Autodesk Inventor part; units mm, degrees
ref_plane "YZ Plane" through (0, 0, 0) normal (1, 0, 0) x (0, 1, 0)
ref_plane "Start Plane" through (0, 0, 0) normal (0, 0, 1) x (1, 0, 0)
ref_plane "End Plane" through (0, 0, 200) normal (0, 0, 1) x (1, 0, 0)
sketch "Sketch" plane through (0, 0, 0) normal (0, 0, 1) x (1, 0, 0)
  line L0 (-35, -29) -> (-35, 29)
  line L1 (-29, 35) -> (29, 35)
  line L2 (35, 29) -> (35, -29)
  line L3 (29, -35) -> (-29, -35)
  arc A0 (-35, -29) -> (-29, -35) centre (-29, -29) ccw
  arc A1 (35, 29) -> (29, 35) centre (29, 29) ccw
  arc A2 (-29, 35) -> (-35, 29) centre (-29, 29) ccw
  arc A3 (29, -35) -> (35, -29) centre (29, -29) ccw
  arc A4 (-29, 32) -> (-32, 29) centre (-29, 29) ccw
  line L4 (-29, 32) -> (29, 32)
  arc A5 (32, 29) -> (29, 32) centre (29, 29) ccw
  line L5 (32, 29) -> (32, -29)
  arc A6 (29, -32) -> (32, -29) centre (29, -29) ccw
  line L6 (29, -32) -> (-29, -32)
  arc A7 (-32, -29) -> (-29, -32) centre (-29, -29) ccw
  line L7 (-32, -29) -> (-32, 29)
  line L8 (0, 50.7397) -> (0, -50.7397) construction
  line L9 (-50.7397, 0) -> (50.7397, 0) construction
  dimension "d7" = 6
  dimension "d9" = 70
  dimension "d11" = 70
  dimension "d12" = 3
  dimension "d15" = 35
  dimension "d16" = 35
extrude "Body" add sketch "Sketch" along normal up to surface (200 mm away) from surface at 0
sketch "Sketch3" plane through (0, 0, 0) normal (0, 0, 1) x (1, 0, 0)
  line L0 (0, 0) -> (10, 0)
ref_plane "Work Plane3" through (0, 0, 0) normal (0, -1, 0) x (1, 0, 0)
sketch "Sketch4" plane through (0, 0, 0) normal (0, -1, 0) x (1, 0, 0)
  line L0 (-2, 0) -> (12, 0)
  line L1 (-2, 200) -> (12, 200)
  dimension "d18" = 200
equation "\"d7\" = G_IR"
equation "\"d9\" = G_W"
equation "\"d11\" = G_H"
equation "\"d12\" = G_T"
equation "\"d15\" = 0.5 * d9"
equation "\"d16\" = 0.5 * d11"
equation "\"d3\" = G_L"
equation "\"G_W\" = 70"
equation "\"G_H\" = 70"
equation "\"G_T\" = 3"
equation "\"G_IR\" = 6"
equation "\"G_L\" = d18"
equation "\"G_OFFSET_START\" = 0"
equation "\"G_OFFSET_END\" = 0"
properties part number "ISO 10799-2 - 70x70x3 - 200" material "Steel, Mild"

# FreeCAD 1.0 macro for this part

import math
import FreeCAD as App
import Part
import Sketcher
from FreeCAD import Vector

doc = App.newDocument("Part")
body = doc.addObject("PartDesign::Body", "Body")

# Sketch on XY plane
sketch1 = body.newObject("Sketcher::SketchObject", "Sketch")
sketch1.AttachmentSupport = (doc.getObject("XY_Plane"), [""])
sketch1.MapMode = "FlatFace"
sketch1.addGeometry([
    Part.LineSegment(Vector(-35, 29, 0), Vector(-35, -29, 0)),  # 0
    Part.ArcOfCircle(Part.Circle(Vector(-29, -29, 0), Vector(0, 0, 1), 6), math.radians(180), math.radians(270)),  # 1
    Part.LineSegment(Vector(-29, -35, 0), Vector(29, -35, 0)),  # 2
    Part.ArcOfCircle(Part.Circle(Vector(29, -29, 0), Vector(0, 0, 1), 6), math.radians(-90), math.radians(0)),  # 3
    Part.LineSegment(Vector(35, -29, 0), Vector(35, 29, 0)),  # 4
    Part.ArcOfCircle(Part.Circle(Vector(29, 29, 0), Vector(0, 0, 1), 6), math.radians(0), math.radians(90)),  # 5
    Part.LineSegment(Vector(29, 35, 0), Vector(-29, 35, 0)),  # 6
    Part.ArcOfCircle(Part.Circle(Vector(-29, 29, 0), Vector(0, 0, 1), 6), math.radians(90), math.radians(180)),  # 7
    Part.ArcOfCircle(Part.Circle(Vector(-29, 29, 0), Vector(0, 0, 1), 3), math.radians(90), math.radians(180)),  # 8
    Part.LineSegment(Vector(-29, 32, 0), Vector(29, 32, 0)),  # 9
    Part.ArcOfCircle(Part.Circle(Vector(29, 29, 0), Vector(0, 0, 1), 3), math.radians(0), math.radians(90)),  # 10
    Part.LineSegment(Vector(32, 29, 0), Vector(32, -29, 0)),  # 11
    Part.ArcOfCircle(Part.Circle(Vector(29, -29, 0), Vector(0, 0, 1), 3), math.radians(-90), math.radians(0)),  # 12
    Part.LineSegment(Vector(29, -32, 0), Vector(-29, -32, 0)),  # 13
    Part.ArcOfCircle(Part.Circle(Vector(-29, -29, 0), Vector(0, 0, 1), 3), math.radians(180), math.radians(270)),  # 14
    Part.LineSegment(Vector(-32, -29, 0), Vector(-32, 29, 0)),  # 15
], False)
sketch1.addConstraint([
    Sketcher.Constraint("Tangent", 0, 2, 1, 1),
    Sketcher.Constraint("Tangent", 1, 2, 2, 1),
    Sketcher.Constraint("Tangent", 2, 2, 3, 1),
    Sketcher.Constraint("Tangent", 3, 2, 4, 1),
    Sketcher.Constraint("Tangent", 4, 2, 5, 1),
    Sketcher.Constraint("Tangent", 5, 2, 6, 1),
    Sketcher.Constraint("Tangent", 6, 2, 7, 1),
    Sketcher.Constraint("Tangent", 7, 2, 0, 1),
    Sketcher.Constraint("Tangent", 8, 1, 9, 1),
    Sketcher.Constraint("Tangent", 9, 2, 10, 2),
    Sketcher.Constraint("Tangent", 10, 1, 11, 1),
    Sketcher.Constraint("Tangent", 11, 2, 12, 2),
    Sketcher.Constraint("Tangent", 12, 1, 13, 1),
    Sketcher.Constraint("Tangent", 13, 2, 14, 2),
    Sketcher.Constraint("Tangent", 14, 1, 15, 1),
    Sketcher.Constraint("Tangent", 15, 2, 8, 2),
    Sketcher.Constraint("Vertical", 0),
    Sketcher.Constraint("Horizontal", 2),
    Sketcher.Constraint("Vertical", 4),
    Sketcher.Constraint("Horizontal", 6),
    Sketcher.Constraint("Horizontal", 9),
    Sketcher.Constraint("Vertical", 11),
    Sketcher.Constraint("Horizontal", 13),
    Sketcher.Constraint("Vertical", 15),
    Sketcher.Constraint("Coincident", 8, 3, 7, 3),
    Sketcher.Constraint("Coincident", 10, 3, 5, 3),
    Sketcher.Constraint("Coincident", 12, 3, 3, 3),
    Sketcher.Constraint("Equal", 1, 3),
    Sketcher.Constraint("Equal", 3, 5),
    Sketcher.Constraint("Equal", 5, 7),
    Sketcher.Constraint("Equal", 12, 14),
    Sketcher.Constraint("Symmetric", 1, 3, 5, 3, -1, 1),
    Sketcher.Constraint("Equal", 13, 0),
    Sketcher.Constraint("Radius", 1, 6.0),
    Sketcher.Constraint("Radius", 8, 3.0),
    Sketcher.Constraint("DistanceX", 0, 2, -1, 1, 35.0),
])
pad1 = body.newObject("PartDesign::Pad", "Pad")
pad1.Profile = sketch1
pad1.Length = 200

doc.recompute()
